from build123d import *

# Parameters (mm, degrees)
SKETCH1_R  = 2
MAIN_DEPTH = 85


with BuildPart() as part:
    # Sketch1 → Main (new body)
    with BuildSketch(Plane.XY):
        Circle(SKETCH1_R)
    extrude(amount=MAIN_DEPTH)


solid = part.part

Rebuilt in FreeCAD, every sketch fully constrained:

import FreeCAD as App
import Part
import Sketcher

V = App.Vector
Q = App.Units.Quantity

doc = App.newDocument("Part")
params = doc.addObject("Spreadsheet::Sheet", "Params")
for row, (alias, value) in enumerate([
    ("sketch1_diameter", "4 mm"),
    ("pad1_length", "85 mm"),
], start=1):
    params.set(f"A{row}", alias)
    params.set(f"B{row}", "=" + value)
    params.setAlias(f"B{row}", alias)

body = doc.addObject("PartDesign::Body", "Body")

# Sketch on XY plane
sketch1 = body.newObject("Sketcher::SketchObject", "Sketch")
sketch1.AttachmentSupport = (doc.getObject("XY_Plane"), [""])
sketch1.MapMode = "FlatFace"
sketch1.addGeometry(Part.Circle(V(0, 0, 0), V(0, 0, 1), 2), False)
sketch1.addConstraint(Sketcher.Constraint("Coincident", 0, 3, -1, 1))
sketch1.addConstraint(Sketcher.Constraint("Diameter", 0, Q("4 mm")))
sketch1.setExpression("Constraints[1]", "Params.sketch1_diameter")
pad1 = body.newObject("PartDesign::Pad", "Pad")
pad1.Profile = sketch1
pad1.setExpression("Length", "Params.pad1_length")

doc.recompute()
